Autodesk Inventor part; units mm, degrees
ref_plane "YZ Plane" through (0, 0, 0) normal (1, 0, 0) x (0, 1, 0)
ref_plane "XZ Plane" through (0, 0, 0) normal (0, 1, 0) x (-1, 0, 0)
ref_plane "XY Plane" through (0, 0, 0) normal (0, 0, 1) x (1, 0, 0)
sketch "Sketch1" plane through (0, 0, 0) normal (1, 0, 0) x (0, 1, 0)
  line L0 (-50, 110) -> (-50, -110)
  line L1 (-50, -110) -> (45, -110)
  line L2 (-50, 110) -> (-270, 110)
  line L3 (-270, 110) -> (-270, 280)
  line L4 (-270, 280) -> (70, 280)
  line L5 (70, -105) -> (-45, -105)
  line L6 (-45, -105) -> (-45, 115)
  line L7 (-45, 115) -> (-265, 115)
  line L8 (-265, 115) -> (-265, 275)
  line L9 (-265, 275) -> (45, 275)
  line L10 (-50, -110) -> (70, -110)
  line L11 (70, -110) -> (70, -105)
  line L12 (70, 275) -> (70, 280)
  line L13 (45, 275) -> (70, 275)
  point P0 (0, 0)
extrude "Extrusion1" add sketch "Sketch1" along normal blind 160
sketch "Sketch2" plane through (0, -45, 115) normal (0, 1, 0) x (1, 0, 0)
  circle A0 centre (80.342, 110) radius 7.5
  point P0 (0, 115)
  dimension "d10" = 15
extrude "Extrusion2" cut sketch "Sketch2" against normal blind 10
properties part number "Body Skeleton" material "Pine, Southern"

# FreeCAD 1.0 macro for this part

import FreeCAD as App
import Part
import Sketcher

doc = App.newDocument("Part")
params = doc.addObject("Spreadsheet::Sheet", "Params")
for row, (alias, value) in enumerate([
    ("sketch1_width", "220 mm"),
    ("sketch1_width2", "120 mm"),
    ("sketch1_width3", "115 mm"),
    ("sketch1_height", "5 mm"),
    ("sketch1_height2", "160 mm"),
    ("pad1_length", "160 mm"),
    ("sketch2_diameter", "15 mm"),
    ("pocket1_length", "10 mm"),
], start=1):
    params.set(f"A{row}", alias)
    params.set(f"B{row}", "=" + value)
    params.setAlias(f"B{row}", alias)

body = doc.addObject("PartDesign::Body", "Body")

sketch1 = doc.addObject("Sketcher::SketchObject", "Sketch")
body.addObject(sketch1)
sketch1.AttachmentSupport = (doc.YZ_Plane, [""])
sketch1.MapMode = "FlatFace"
sketch1.addGeometry(Part.LineSegment(App.Vector(-270, 110, 0), App.Vector(-50, 110, 0)), False)
sketch1.addGeometry(Part.LineSegment(App.Vector(-50, 110, 0), App.Vector(-50, -110, 0)), False)
sketch1.addGeometry(Part.LineSegment(App.Vector(-50, -110, 0), App.Vector(70, -110, 0)), False)
sketch1.addGeometry(Part.LineSegment(App.Vector(70, -110, 0), App.Vector(70, -105, 0)), False)
sketch1.addGeometry(Part.LineSegment(App.Vector(70, -105, 0), App.Vector(-45, -105, 0)), False)
sketch1.addGeometry(Part.LineSegment(App.Vector(-45, -105, 0), App.Vector(-45, 115, 0)), False)
sketch1.addGeometry(Part.LineSegment(App.Vector(-45, 115, 0), App.Vector(-265, 115, 0)), False)
sketch1.addGeometry(Part.LineSegment(App.Vector(-265, 115, 0), App.Vector(-265, 275, 0)), False)
sketch1.addGeometry(Part.LineSegment(App.Vector(-265, 275, 0), App.Vector(70, 275, 0)), False)
sketch1.addGeometry(Part.LineSegment(App.Vector(70, 275, 0), App.Vector(70, 280, 0)), False)
sketch1.addGeometry(Part.LineSegment(App.Vector(70, 280, 0), App.Vector(-270, 280, 0)), False)
sketch1.addGeometry(Part.LineSegment(App.Vector(-270, 280, 0), App.Vector(-270, 110, 0)), False)
sketch1.addConstraint(Sketcher.Constraint("Coincident", 0, 2, 1, 1))
sketch1.addConstraint(Sketcher.Constraint("Coincident", 1, 2, 2, 1))
sketch1.addConstraint(Sketcher.Constraint("Coincident", 2, 2, 3, 1))
sketch1.addConstraint(Sketcher.Constraint("Coincident", 3, 2, 4, 1))
sketch1.addConstraint(Sketcher.Constraint("Coincident", 4, 2, 5, 1))
sketch1.addConstraint(Sketcher.Constraint("Coincident", 5, 2, 6, 1))
sketch1.addConstraint(Sketcher.Constraint("Coincident", 6, 2, 7, 1))
sketch1.addConstraint(Sketcher.Constraint("Coincident", 7, 2, 8, 1))
sketch1.addConstraint(Sketcher.Constraint("Coincident", 8, 2, 9, 1))
sketch1.addConstraint(Sketcher.Constraint("Coincident", 9, 2, 10, 1))
sketch1.addConstraint(Sketcher.Constraint("Coincident", 10, 2, 11, 1))
sketch1.addConstraint(Sketcher.Constraint("Coincident", 11, 2, 0, 1))
sketch1.addConstraint(Sketcher.Constraint("Horizontal", 0))
sketch1.addConstraint(Sketcher.Constraint("Vertical", 1))
sketch1.addConstraint(Sketcher.Constraint("Horizontal", 2))
sketch1.addConstraint(Sketcher.Constraint("Vertical", 3))
sketch1.addConstraint(Sketcher.Constraint("Horizontal", 4))
sketch1.addConstraint(Sketcher.Constraint("Vertical", 5))
sketch1.addConstraint(Sketcher.Constraint("Horizontal", 6))
sketch1.addConstraint(Sketcher.Constraint("Vertical", 7))
sketch1.addConstraint(Sketcher.Constraint("Horizontal", 8))
sketch1.addConstraint(Sketcher.Constraint("Vertical", 9))
sketch1.addConstraint(Sketcher.Constraint("Horizontal", 10))
sketch1.addConstraint(Sketcher.Constraint("Vertical", 11))
sketch1.addConstraint(Sketcher.Constraint("Vertical", 3, 2, 8, 2))
sketch1.addConstraint(Sketcher.Constraint("Equal", 0, 6))
sketch1.addConstraint(Sketcher.Constraint("Equal", 6, 1))
sketch1.addConstraint(Sketcher.Constraint("Equal", 1, 5))
sketch1.addConstraint(Sketcher.Constraint("Equal", 3, 9))
sketch1.addConstraint(Sketcher.Constraint("DistanceX", 0, 1, 0, 2, 220.0))
sketch1.addConstraint(Sketcher.Constraint("DistanceX", 2, 1, 2, 2, 120.0))
sketch1.addConstraint(Sketcher.Constraint("DistanceX", 4, 2, 4, 1, 115.0))
sketch1.addConstraint(Sketcher.Constraint("DistanceY", 3, 1, 3, 2, 5.0))
sketch1.addConstraint(Sketcher.Constraint("DistanceY", 7, 1, 7, 2, 160.0))
sketch1.addConstraint(Sketcher.Constraint("DistanceX", 0, 2, -1, 1, 50.0))
sketch1.addConstraint(Sketcher.Constraint("DistanceY", -1, 1, 0, 2, 110.0))
sketch1.setExpression("Constraints[29]", "Params.sketch1_width")
sketch1.setExpression("Constraints[30]", "Params.sketch1_width2")
sketch1.setExpression("Constraints[31]", "Params.sketch1_width3")
sketch1.setExpression("Constraints[32]", "Params.sketch1_height")
sketch1.setExpression("Constraints[33]", "Params.sketch1_height2")
pad1 = doc.addObject("PartDesign::Pad", "Pad")
body.addObject(pad1)
pad1.Profile = sketch1
pad1.setExpression("Length", "Params.pad1_length")

sketch2 = doc.addObject("Sketcher::SketchObject", "Sketch001")
body.addObject(sketch2)
sketch2.AttachmentSupport = (doc.XZ_Plane, [""])
sketch2.MapMode = "FlatFace"
sketch2.AttachmentOffset = App.Placement(App.Vector(0, 0, 45), App.Rotation())
sketch2.addGeometry(Part.Circle(App.Vector(80.342, 5, 0), App.Vector(0, 0, 1), 7.5), False)
sketch2.addConstraint(Sketcher.Constraint("Diameter", 0, 15.0))
sketch2.addConstraint(Sketcher.Constraint("DistanceY", -1, 1, 0, 3, 5.0))
sketch2.addConstraint(Sketcher.Constraint("DistanceX", -1, 1, 0, 3, 80.342))
sketch2.setExpression("Constraints[0]", "Params.sketch2_diameter")
pocket1 = doc.addObject("PartDesign::Pocket", "Pocket")
body.addObject(pocket1)
pocket1.Profile = sketch2
pocket1.setExpression("Length", "Params.pocket1_length")
pocket1.Reversed = True

doc.recompute()
